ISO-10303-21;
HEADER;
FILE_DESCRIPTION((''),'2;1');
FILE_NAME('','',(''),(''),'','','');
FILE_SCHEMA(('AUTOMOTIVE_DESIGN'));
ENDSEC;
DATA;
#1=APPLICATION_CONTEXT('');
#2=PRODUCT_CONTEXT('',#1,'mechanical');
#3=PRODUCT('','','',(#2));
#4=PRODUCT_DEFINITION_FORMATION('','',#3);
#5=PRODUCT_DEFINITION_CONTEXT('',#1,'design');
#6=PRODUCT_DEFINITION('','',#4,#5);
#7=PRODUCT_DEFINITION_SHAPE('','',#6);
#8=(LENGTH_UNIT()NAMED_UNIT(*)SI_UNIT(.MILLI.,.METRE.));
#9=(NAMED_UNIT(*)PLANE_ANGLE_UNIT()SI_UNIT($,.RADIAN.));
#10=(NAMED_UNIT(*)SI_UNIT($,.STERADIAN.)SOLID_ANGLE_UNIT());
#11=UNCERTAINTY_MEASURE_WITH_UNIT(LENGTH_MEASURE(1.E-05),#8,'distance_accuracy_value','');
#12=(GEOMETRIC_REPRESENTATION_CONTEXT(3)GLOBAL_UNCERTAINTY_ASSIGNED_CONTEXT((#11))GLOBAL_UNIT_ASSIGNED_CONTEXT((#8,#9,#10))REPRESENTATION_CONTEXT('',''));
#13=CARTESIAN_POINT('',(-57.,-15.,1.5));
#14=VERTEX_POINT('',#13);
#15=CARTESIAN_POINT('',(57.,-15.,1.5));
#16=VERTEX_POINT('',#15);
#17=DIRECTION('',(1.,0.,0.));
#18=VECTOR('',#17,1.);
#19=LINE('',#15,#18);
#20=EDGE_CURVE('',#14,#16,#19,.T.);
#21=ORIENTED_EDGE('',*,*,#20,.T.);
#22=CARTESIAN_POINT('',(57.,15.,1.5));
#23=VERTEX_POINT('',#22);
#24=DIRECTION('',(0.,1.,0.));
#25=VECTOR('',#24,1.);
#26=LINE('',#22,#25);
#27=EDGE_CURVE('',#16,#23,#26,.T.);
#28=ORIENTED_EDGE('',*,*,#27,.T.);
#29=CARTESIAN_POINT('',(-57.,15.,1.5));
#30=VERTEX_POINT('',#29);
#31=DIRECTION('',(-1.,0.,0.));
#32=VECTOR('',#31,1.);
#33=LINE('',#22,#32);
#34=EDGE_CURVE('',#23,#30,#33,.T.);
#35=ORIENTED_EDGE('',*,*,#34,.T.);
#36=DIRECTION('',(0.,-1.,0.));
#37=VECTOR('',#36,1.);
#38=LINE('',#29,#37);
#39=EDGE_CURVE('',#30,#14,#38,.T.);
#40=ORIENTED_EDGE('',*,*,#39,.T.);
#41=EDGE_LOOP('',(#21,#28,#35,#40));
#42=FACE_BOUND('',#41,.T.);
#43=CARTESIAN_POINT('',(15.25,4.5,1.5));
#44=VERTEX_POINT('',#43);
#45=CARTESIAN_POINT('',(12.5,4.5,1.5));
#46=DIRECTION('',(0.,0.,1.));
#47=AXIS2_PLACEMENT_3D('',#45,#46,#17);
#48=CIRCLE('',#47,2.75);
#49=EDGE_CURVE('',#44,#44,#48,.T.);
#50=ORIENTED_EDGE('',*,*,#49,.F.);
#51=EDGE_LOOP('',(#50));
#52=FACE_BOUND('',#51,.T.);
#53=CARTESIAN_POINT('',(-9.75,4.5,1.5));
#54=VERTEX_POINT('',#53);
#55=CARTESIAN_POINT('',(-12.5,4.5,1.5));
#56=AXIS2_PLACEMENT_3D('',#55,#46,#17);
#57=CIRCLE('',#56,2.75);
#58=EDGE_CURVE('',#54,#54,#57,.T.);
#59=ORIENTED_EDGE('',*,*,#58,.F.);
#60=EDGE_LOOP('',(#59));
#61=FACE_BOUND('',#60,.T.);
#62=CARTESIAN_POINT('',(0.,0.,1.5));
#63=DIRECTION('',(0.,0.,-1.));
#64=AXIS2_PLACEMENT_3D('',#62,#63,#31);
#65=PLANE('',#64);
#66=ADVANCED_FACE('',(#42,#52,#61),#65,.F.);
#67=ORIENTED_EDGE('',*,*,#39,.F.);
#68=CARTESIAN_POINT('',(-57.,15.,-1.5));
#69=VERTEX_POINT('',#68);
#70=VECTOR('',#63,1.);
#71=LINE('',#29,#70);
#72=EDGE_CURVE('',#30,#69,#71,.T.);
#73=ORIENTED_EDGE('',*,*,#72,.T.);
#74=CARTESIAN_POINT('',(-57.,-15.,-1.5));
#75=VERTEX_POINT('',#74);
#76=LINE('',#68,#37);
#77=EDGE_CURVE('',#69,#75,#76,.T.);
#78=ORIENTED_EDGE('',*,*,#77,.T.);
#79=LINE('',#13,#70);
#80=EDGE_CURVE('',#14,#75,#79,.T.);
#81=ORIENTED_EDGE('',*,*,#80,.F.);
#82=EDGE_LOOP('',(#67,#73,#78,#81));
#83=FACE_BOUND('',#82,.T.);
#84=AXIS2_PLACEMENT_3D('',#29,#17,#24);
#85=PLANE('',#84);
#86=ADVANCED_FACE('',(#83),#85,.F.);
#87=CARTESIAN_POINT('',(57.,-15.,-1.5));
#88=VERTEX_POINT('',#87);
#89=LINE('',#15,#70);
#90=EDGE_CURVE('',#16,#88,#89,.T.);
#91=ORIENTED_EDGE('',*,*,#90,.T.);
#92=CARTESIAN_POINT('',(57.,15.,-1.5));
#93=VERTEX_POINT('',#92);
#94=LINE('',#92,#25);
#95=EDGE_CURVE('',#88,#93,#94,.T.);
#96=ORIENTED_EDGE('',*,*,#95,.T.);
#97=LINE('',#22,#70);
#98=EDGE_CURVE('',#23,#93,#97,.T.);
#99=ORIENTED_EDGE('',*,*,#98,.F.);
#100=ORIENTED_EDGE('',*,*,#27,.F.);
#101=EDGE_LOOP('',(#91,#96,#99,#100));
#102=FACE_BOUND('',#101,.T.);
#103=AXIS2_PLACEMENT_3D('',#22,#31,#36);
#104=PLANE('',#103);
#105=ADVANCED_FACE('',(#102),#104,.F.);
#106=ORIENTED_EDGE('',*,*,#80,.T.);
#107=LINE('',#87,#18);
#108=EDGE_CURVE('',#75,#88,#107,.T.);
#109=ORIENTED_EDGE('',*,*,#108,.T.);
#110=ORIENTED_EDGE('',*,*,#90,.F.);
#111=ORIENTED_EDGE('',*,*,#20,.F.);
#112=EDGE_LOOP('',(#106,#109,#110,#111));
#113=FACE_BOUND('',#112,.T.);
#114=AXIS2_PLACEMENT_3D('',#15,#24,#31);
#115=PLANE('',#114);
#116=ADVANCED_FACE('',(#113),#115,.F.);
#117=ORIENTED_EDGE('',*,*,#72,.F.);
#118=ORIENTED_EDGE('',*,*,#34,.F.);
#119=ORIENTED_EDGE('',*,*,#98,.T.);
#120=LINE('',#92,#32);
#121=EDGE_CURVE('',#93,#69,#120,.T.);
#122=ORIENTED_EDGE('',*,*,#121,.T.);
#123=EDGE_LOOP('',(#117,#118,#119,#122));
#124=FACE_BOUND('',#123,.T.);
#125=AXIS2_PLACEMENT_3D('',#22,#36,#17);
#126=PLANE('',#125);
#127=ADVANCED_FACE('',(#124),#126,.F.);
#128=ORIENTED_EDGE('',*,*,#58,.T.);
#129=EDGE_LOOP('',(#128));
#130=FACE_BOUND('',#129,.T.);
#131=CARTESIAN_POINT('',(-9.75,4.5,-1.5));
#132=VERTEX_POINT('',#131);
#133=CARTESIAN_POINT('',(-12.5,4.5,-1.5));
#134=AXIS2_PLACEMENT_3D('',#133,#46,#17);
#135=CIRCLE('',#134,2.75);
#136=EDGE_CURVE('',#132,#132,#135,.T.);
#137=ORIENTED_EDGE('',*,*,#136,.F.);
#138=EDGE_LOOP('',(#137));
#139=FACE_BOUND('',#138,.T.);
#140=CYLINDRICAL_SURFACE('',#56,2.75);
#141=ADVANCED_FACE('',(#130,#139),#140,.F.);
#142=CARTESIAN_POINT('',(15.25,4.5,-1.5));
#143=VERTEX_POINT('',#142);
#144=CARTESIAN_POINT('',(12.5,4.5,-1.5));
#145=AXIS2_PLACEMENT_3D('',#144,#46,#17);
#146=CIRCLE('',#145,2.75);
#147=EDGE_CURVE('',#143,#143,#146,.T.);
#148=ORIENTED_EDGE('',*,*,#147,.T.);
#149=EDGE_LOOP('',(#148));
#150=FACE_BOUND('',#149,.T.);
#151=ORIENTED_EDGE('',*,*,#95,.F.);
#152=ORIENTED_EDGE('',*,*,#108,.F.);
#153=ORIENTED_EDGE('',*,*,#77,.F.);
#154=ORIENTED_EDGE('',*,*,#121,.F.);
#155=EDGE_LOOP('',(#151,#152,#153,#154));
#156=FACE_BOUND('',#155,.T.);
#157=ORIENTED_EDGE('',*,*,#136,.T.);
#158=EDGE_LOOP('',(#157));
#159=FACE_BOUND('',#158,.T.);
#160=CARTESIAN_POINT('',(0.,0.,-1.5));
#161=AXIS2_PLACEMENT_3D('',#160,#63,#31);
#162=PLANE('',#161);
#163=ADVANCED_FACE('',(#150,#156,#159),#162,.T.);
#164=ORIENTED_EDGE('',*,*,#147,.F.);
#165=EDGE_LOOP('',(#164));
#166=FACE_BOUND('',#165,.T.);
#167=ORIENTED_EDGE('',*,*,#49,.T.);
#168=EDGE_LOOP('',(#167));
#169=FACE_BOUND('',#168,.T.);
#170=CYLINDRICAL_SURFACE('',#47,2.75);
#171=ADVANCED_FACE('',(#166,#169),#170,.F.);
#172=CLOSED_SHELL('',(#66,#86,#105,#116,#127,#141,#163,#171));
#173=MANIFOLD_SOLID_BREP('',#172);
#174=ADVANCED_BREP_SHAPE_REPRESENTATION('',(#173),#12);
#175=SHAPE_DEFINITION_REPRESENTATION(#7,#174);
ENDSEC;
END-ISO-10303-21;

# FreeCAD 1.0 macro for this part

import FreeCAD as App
import Part
import Sketcher
from FreeCAD import Vector


def add_polygon(sketch, points):
    """Adds a closed chain of lines whose ends are joined by coincident constraints."""
    first, n = sketch.GeometryCount, len(points)
    for a, b in zip(points, points[1:] + points[:1]):
        sketch.addGeometry(Part.LineSegment(App.Vector(*a, 0), App.Vector(*b, 0)), False)
    for i in range(n):
        sketch.addConstraint(Sketcher.Constraint("Coincident", first + i, 2, first + (i + 1) % n, 1))

doc = App.newDocument("Part")
body = doc.addObject("PartDesign::Body", "Body")

# Sketch on XY plane
sketch1 = body.newObject("Sketcher::SketchObject", "Sketch")
sketch1.AttachmentSupport = (doc.getObject("XY_Plane"), [""])
sketch1.MapMode = "FlatFace"
add_polygon(sketch1, [(-57, 15), (-57, -15), (57, -15), (57, 15)])  # lines 0-3
sketch1.addConstraint([
    Sketcher.Constraint("Vertical", 0),
    Sketcher.Constraint("Horizontal", 1),
    Sketcher.Constraint("Vertical", 2),
    Sketcher.Constraint("Horizontal", 3),
    Sketcher.Constraint("Symmetric", 0, 2, 2, 2, -1, 1),
    Sketcher.Constraint("DistanceX", 1, 1, 1, 2, 114.0),
    Sketcher.Constraint("DistanceY", 0, 2, 0, 1, 30.0),
])
pad1 = body.newObject("PartDesign::Pad", "Pad")
pad1.Profile = sketch1
pad1.Length = 3
pad1.Midplane = True

# Sketch on XY plane
sketch2 = body.newObject("Sketcher::SketchObject", "Sketch001")
sketch2.AttachmentSupport = (doc.getObject("XY_Plane"), [""])
sketch2.MapMode = "FlatFace"
sketch2.AttachmentOffset = App.Placement(Vector(0, 0, 1.5), App.Rotation())
sketch2.addGeometry([
    Part.Circle(Vector(-12.5, 4.5, 0), Vector(0, 0, 1), 2.8),
    Part.Circle(Vector(12.5, 4.5, 0), Vector(0, 0, 1), 2.8),
], False)
sketch2.addConstraint([
    Sketcher.Constraint("Equal", 0, 1),
    Sketcher.Constraint("Symmetric", 0, 3, 1, 3, -2),
    Sketcher.Constraint("Diameter", 0, 5.5),
    Sketcher.Constraint("DistanceX", 0, 3, 1, 3, 25.0),
    Sketcher.Constraint("DistanceY", -1, 1, 0, 3, 4.5),
])
doc.recompute()
hole = body.newObject("PartDesign::Hole", "Hole")
hole.Profile = sketch2
hole.ThreadType = "None"
hole.Diameter = 5.5
hole.DepthType = "ThroughAll"

doc.recompute()
